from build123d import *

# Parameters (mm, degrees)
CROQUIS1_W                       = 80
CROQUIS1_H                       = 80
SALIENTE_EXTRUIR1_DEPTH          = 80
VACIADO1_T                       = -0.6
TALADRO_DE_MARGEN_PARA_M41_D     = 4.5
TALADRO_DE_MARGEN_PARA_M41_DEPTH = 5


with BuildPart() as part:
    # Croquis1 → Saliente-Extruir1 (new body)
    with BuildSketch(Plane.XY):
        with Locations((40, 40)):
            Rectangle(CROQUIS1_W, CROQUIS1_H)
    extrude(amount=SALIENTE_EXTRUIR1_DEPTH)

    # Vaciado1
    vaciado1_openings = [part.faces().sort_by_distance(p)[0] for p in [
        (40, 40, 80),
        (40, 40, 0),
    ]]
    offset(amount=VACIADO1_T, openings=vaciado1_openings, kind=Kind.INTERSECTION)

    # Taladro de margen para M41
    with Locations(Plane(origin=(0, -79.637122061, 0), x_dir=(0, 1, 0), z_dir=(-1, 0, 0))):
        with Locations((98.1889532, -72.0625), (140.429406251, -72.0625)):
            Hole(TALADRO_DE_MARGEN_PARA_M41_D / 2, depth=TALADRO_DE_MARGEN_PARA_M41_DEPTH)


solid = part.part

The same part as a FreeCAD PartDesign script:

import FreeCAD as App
import Part
import Sketcher
Q = App.Units.Quantity


def faces_at(feature, points):
    """Names of the faces that lie closest to the given points."""
    faces = feature.Shape.Faces
    near = lambda p: min(range(len(faces)), key=lambda i: faces[i].distToShape(Part.Vertex(*p))[0])
    return sorted({f"Face{near(p) + 1}" for p in points})

doc = App.newDocument("Part")
body = doc.addObject("PartDesign::Body", "Body")

# Sketch on XY plane
sketch1 = body.newObject("Sketcher::SketchObject", "Sketch")
sketch1.AttachmentSupport = (doc.getObject("XY_Plane"), [""])
sketch1.MapMode = "FlatFace"
sketch1.addGeometry([
    Part.LineSegment(App.Vector(0, 80, 0), App.Vector(0, 0, 0)),
    Part.LineSegment(App.Vector(0, 0, 0), App.Vector(80, 0, 0)),
    Part.LineSegment(App.Vector(80, 0, 0), App.Vector(80, 80, 0)),
    Part.LineSegment(App.Vector(80, 80, 0), App.Vector(0, 80, 0)),
], False)
sketch1.addConstraint([
    Sketcher.Constraint("Coincident", 0, 2, 1, 1),
    Sketcher.Constraint("Coincident", 1, 2, 2, 1),
    Sketcher.Constraint("Coincident", 2, 2, 3, 1),
    Sketcher.Constraint("Coincident", 3, 2, 0, 1),
    Sketcher.Constraint("Vertical", 0),
    Sketcher.Constraint("Horizontal", 1),
    Sketcher.Constraint("Vertical", 2),
    Sketcher.Constraint("Horizontal", 3),
    Sketcher.Constraint("Coincident", 0, 2, -1, 1),
    Sketcher.Constraint("Equal", 3, 0),
    Sketcher.Constraint("DistanceX", 1, 1, 1, 2, Q("80 mm")),
])
pad1 = body.newObject("PartDesign::Pad", "Pad")
pad1.Profile = sketch1
pad1.Length = 80
doc.recompute()

thickness = body.newObject("PartDesign::Thickness", "Thickness")
thickness.Base = (pad1, faces_at(pad1, [(40, 40, 80), (40, 40, 0)]))
thickness.Value = 0.6
thickness.Reversed = True
thickness.Join = "Intersection"

# Sketch on YZ plane
sketch2 = body.newObject("Sketcher::SketchObject", "Sketch001")
sketch2.AttachmentSupport = (doc.getObject("YZ_Plane"), [""])
sketch2.MapMode = "FlatFace"
sketch2.addGeometry([
    Part.Circle(App.Vector(18.6, 72.1, 0), App.Vector(0, 0, 1), 2.2),
    Part.Circle(App.Vector(60.8, 72.1, 0), App.Vector(0, 0, 1), 2.2),
], False)
sketch2.addConstraint([
    Sketcher.Constraint("Equal", 0, 1),
    Sketcher.Constraint("Horizontal", 0, 3, 1, 3),
    Sketcher.Constraint("Diameter", 0, Q("4.5 mm")),
    Sketcher.Constraint("DistanceY", -1, 1, 0, 3, Q("72.0625 mm")),
    Sketcher.Constraint("DistanceX", -1, 1, 0, 3, Q("18.551831 mm")),
    Sketcher.Constraint("DistanceX", -1, 1, 1, 3, Q("60.792284 mm")),
])
doc.recompute()
hole = body.newObject("PartDesign::Hole", "Hole")
hole.Profile = sketch2
hole.ThreadType = "None"
hole.Diameter = 4.5
hole.DepthType = "Dimension"
hole.Depth = 5
hole.DrillPoint = "Flat"
hole.Reversed = True

doc.recompute()
